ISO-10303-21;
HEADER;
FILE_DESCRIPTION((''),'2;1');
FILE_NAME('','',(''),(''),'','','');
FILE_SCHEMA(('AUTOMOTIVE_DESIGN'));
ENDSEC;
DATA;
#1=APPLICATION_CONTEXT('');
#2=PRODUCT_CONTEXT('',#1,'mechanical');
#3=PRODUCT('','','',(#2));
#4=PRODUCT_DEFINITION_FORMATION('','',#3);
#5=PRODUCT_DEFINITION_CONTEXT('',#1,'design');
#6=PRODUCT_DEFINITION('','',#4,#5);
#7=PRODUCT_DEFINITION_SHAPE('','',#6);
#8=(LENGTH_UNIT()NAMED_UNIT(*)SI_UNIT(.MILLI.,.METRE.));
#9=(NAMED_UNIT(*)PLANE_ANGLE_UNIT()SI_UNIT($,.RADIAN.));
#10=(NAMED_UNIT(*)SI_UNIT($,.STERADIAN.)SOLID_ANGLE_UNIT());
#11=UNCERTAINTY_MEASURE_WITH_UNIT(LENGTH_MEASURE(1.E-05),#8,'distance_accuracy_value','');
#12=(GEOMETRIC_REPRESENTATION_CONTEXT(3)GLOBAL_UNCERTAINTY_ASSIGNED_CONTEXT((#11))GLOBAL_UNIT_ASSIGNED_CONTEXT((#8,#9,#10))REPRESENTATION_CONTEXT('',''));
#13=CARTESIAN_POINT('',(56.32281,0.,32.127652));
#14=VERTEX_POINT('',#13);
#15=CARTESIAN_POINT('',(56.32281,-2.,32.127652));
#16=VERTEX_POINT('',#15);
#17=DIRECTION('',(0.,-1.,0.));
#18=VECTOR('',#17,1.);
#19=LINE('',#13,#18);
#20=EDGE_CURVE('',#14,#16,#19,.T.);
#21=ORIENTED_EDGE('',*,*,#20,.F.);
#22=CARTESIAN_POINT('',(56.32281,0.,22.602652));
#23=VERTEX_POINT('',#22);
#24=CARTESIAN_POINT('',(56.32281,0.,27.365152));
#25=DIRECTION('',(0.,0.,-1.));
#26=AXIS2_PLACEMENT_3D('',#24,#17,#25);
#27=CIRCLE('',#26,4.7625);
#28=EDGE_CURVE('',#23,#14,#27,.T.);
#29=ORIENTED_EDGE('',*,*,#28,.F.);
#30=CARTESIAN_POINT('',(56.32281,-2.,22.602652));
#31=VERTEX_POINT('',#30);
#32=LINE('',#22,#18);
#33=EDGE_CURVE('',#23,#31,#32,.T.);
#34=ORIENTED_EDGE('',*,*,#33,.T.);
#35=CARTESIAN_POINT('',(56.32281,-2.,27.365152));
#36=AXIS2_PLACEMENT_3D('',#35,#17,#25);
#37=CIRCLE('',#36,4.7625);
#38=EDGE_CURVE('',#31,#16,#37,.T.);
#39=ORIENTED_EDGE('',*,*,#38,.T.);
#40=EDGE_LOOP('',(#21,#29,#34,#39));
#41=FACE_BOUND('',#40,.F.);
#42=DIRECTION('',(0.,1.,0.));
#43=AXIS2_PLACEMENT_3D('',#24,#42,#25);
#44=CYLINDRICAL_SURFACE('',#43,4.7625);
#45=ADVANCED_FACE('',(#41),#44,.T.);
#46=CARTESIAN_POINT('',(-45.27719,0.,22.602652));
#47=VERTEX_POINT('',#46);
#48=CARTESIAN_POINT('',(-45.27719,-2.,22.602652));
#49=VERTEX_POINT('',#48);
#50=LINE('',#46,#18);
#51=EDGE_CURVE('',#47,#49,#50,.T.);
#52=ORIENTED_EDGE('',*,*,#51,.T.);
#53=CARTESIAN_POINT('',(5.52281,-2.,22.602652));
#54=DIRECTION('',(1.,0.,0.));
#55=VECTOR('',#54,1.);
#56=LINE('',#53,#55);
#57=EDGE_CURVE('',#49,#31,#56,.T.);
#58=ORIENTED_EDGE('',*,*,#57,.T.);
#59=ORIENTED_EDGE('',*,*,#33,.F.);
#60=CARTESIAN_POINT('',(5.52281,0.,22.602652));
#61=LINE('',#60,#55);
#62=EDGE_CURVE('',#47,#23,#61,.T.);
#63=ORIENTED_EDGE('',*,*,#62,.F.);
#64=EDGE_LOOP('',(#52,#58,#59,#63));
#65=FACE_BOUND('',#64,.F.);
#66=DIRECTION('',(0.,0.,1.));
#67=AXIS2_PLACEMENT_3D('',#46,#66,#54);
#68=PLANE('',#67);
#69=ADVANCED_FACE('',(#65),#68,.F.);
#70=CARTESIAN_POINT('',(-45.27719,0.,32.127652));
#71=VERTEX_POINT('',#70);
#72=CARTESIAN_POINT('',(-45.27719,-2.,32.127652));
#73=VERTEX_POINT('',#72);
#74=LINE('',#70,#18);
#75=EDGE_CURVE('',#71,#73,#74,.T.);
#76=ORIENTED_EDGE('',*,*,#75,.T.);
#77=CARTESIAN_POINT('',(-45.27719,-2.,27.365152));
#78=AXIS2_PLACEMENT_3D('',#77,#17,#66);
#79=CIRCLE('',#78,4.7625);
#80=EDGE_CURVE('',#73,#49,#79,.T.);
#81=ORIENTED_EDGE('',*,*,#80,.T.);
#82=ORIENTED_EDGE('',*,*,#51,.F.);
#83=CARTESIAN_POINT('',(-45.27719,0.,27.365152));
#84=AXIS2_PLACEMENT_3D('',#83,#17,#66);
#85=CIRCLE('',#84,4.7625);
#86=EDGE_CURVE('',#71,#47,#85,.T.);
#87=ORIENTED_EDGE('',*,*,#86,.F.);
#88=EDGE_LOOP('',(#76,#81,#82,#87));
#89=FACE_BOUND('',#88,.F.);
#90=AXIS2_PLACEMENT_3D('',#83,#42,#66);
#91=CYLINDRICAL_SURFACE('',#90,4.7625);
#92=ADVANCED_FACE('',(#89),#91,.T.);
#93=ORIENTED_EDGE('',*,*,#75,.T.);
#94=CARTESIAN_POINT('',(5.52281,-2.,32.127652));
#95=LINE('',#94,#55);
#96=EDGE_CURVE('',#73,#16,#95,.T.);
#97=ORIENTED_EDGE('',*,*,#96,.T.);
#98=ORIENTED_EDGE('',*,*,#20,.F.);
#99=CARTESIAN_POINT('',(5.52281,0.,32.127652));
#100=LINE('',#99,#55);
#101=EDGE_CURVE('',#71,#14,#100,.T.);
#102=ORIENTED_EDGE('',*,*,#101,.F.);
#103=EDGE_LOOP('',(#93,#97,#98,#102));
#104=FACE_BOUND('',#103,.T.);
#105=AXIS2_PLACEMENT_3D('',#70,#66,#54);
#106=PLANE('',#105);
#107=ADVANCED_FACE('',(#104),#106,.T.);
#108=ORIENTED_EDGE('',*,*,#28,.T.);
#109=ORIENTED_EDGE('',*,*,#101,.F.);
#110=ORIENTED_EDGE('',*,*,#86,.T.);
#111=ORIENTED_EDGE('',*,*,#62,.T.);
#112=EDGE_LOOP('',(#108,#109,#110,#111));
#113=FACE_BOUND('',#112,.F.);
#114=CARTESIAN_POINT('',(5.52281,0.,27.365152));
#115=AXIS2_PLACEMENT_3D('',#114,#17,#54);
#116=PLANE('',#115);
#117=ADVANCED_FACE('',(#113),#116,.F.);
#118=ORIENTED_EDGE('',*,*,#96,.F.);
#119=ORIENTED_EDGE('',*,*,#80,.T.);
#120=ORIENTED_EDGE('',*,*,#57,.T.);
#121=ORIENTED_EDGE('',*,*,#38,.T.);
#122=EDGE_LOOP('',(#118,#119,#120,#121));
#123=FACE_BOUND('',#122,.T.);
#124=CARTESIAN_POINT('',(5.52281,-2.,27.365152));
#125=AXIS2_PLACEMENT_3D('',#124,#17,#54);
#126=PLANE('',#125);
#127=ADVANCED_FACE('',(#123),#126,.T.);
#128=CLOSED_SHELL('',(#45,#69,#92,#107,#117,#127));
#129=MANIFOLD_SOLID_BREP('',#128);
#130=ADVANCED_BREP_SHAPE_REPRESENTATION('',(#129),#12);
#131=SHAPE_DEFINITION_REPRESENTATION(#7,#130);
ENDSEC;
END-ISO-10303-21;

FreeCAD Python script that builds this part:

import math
import FreeCAD as App
import Part
import Sketcher
Q = App.Units.Quantity

doc = App.newDocument("Part")
body = doc.addObject("PartDesign::Body", "Body")

sketch1 = body.newObject("Sketcher::SketchObject", "Sketch")
sketch1.AttachmentSupport = (doc.getObject("XZ_Plane"), [""])
sketch1.MapMode = "FlatFace"
sketch1.addGeometry(Part.LineSegment(App.Vector(-45.27719, 22.602652, 0), App.Vector(56.32281, 22.602652, 0)), False)
sketch1.addGeometry(Part.ArcOfCircle(Part.Circle(App.Vector(56.32281, 27.365152, 0), App.Vector(0, 0, 1), 4.7625), math.radians(-90), math.radians(90)), False)
sketch1.addGeometry(Part.LineSegment(App.Vector(56.32281, 32.127652, 0), App.Vector(-45.27719, 32.127652, 0)), False)
sketch1.addGeometry(Part.ArcOfCircle(Part.Circle(App.Vector(-45.27719, 27.365152, 0), App.Vector(0, 0, 1), 4.7625), math.radians(90), math.radians(270)), False)
sketch1.addConstraint(Sketcher.Constraint("Tangent", 0, 2, 1, 1))
sketch1.addConstraint(Sketcher.Constraint("Tangent", 1, 2, 2, 1))
sketch1.addConstraint(Sketcher.Constraint("Tangent", 2, 2, 3, 1))
sketch1.addConstraint(Sketcher.Constraint("Tangent", 3, 2, 0, 1))
sketch1.addConstraint(Sketcher.Constraint("Horizontal", 0))
sketch1.addConstraint(Sketcher.Constraint("Horizontal", 2))
sketch1.addConstraint(Sketcher.Constraint("DistanceX", 0, 1, 0, 2, Q("4 in")))
sketch1.addConstraint(Sketcher.Constraint("Radius", 1, Q("0.1875 in")))
sketch1.addConstraint(Sketcher.Constraint("DistanceX", -1, 1, 1, 3, Q("56.32281 mm")))
sketch1.addConstraint(Sketcher.Constraint("DistanceY", -1, 1, 1, 3, Q("27.365152 mm")))
pad1 = body.newObject("PartDesign::Pad", "Pad")
pad1.Profile = sketch1
pad1.Length = 2

doc.recompute()
